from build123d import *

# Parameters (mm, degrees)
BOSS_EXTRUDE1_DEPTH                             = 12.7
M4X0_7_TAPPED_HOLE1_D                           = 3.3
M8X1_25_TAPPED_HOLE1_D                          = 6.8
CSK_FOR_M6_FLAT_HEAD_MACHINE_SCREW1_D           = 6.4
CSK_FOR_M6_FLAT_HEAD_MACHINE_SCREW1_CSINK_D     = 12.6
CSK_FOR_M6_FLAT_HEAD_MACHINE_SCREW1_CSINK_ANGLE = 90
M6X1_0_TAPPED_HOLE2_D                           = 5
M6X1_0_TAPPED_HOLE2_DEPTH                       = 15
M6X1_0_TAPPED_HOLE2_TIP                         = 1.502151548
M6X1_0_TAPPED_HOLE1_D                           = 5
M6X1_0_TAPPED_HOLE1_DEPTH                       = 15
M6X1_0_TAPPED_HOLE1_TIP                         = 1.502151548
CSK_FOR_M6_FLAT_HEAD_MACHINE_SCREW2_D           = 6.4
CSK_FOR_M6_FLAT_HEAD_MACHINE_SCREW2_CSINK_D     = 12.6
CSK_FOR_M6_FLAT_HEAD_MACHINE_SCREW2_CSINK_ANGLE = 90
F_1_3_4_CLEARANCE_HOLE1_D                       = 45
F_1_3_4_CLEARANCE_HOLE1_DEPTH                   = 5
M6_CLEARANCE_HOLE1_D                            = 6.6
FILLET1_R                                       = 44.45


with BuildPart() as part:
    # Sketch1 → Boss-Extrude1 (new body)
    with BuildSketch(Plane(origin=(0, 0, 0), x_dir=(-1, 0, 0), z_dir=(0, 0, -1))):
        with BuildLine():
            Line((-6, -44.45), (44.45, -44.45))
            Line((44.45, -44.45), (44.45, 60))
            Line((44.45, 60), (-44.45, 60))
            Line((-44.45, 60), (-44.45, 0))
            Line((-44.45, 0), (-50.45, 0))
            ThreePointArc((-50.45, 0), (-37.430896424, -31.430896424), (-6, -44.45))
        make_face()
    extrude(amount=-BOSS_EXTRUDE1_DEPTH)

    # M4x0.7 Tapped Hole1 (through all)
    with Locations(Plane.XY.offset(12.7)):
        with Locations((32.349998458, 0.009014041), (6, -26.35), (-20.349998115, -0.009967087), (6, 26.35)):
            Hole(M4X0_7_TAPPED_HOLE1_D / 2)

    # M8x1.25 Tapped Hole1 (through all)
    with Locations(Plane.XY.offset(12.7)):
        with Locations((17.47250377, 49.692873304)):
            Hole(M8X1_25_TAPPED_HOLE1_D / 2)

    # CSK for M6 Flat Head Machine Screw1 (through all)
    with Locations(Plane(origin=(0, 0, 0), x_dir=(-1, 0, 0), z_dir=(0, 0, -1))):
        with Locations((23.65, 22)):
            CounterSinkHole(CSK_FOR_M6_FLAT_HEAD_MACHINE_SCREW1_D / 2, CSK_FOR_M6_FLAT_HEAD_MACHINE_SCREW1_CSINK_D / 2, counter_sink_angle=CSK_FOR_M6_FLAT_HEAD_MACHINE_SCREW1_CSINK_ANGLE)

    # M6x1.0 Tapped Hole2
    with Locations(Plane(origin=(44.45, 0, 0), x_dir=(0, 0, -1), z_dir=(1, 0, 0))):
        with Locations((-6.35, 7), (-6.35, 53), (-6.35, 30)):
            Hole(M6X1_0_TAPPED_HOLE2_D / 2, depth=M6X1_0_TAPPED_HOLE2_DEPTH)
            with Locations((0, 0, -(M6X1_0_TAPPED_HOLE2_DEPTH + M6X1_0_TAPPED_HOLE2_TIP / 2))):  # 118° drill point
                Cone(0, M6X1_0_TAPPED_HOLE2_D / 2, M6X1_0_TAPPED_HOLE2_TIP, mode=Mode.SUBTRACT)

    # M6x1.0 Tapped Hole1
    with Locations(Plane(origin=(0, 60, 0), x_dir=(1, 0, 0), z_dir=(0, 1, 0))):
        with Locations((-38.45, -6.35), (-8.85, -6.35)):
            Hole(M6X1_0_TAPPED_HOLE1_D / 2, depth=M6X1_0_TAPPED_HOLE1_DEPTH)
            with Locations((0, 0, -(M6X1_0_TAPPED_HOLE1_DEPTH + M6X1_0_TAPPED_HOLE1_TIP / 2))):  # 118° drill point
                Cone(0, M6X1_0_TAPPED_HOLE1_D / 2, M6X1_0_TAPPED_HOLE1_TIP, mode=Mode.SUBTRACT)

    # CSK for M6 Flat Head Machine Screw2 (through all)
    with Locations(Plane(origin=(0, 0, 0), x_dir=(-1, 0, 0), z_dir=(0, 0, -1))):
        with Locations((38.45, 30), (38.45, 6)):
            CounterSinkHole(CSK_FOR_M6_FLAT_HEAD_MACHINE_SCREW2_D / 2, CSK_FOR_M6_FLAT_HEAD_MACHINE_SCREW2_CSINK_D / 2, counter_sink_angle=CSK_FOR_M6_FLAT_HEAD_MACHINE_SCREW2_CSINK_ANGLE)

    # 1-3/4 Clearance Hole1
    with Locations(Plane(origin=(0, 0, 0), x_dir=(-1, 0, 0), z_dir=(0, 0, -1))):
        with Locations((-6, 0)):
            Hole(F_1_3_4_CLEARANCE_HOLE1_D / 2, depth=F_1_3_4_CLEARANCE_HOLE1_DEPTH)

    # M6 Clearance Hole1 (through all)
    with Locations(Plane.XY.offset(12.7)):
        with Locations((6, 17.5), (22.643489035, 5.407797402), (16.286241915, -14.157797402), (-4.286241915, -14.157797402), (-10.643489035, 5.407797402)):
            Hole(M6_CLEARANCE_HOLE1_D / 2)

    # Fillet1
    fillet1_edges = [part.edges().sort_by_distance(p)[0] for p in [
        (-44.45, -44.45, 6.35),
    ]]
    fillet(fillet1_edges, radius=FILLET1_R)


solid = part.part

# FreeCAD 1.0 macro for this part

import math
import FreeCAD as App
import Part
import Sketcher

V = App.Vector
Q = App.Units.Quantity


def edges_at(feature, points):
    """Names of the edges that pass closest to the given points."""
    edges = feature.Shape.Edges
    near = lambda p: min(range(len(edges)), key=lambda i: edges[i].distToShape(Part.Vertex(*p))[0])
    return sorted({f"Edge{near(p) + 1}" for p in points})

doc = App.newDocument("Part")
params = doc.addObject("Spreadsheet::Sheet", "Params")
for row, (alias, value) in enumerate([
    ("sketch1_width", "6 mm"),
    ("sketch1_height", "60 mm"),
    ("sketch1_radius", "44.45 mm"),
    ("sketch1_width2", "88.9 mm"),
    ("pad1_length", "12.7 mm"),
    ("sketch2_diameter", "3.3 mm"),
    ("hole_diameter", "3.3 mm"),
    ("sketch3_diameter", "6.8 mm"),
    ("hole2_diameter", "6.8 mm"),
    ("sketch4_diameter", "6.4 mm"),
    ("hole3_diameter", "6.4 mm"),
    ("hole3_csink_diameter", "12.6 mm"),
    ("sketch5_diameter", "5 mm"),
    ("hole4_diameter", "5 mm"),
    ("hole4_depth", "15 mm"),
    ("sketch6_diameter", "5 mm"),
    ("hole5_diameter", "5 mm"),
    ("hole5_depth", "15 mm"),
    ("sketch7_diameter", "6.4 mm"),
    ("hole6_diameter", "6.4 mm"),
    ("hole6_csink_diameter", "12.6 mm"),
    ("sketch8_diameter", "45 mm"),
    ("hole7_diameter", "45 mm"),
    ("hole7_depth", "5 mm"),
    ("sketch9_diameter", "6.6 mm"),
    ("hole8_diameter", "6.6 mm"),
    ("fillet_radius", "44.45 mm"),
], start=1):
    params.set(f"A{row}", alias)
    params.set(f"B{row}", "=" + value)
    params.setAlias(f"B{row}", alias)

body = doc.addObject("PartDesign::Body", "Body")

sketch1 = body.newObject("Sketcher::SketchObject", "Sketch")
sketch1.AttachmentSupport = (doc.getObject("XY_Plane"), [""])
sketch1.MapMode = "FlatFace"
sketch1.addGeometry(Part.LineSegment(V(6, -44, 0), V(-44, -44, 0)), False)
sketch1.addGeometry(Part.LineSegment(V(-44, -44, 0), V(-44, 60, 0)), False)
sketch1.addGeometry(Part.LineSegment(V(-44, 60, 0), V(44, 60, 0)), False)
sketch1.addGeometry(Part.LineSegment(V(44, 60, 0), V(44, 0, 0)), False)
sketch1.addGeometry(Part.LineSegment(V(44, 0, 0), V(50, 0, 0)), False)
sketch1.addGeometry(Part.ArcOfCircle(Part.Circle(V(6, 0, 0), V(0, 0, 1), 44), math.radians(-90), math.radians(0)), False)
sketch1.addConstraint(Sketcher.Constraint("Coincident", 0, 2, 1, 1))
sketch1.addConstraint(Sketcher.Constraint("Coincident", 1, 2, 2, 1))
sketch1.addConstraint(Sketcher.Constraint("Coincident", 2, 2, 3, 1))
sketch1.addConstraint(Sketcher.Constraint("Coincident", 3, 2, 4, 1))
sketch1.addConstraint(Sketcher.Constraint("Coincident", 4, 2, 5, 2))
sketch1.addConstraint(Sketcher.Constraint("Tangent", 5, 1, 0, 1))
sketch1.addConstraint(Sketcher.Constraint("Horizontal", 0))
sketch1.addConstraint(Sketcher.Constraint("Vertical", 1))
sketch1.addConstraint(Sketcher.Constraint("Horizontal", 2))
sketch1.addConstraint(Sketcher.Constraint("Vertical", 3))
sketch1.addConstraint(Sketcher.Constraint("Horizontal", 4))
sketch1.addConstraint(Sketcher.Constraint("PointOnObject", 5, 3, -1))
sketch1.addConstraint(Sketcher.Constraint("PointOnObject", 3, 2, -1))
sketch1.addConstraint(Sketcher.Constraint("DistanceX", 4, 1, 4, 2, Q("6 mm")))
sketch1.addConstraint(Sketcher.Constraint("DistanceY", 3, 2, 3, 1, Q("60 mm")))
sketch1.addConstraint(Sketcher.Constraint("Radius", 5, Q("44.45 mm")))
sketch1.addConstraint(Sketcher.Constraint("DistanceX", 2, 1, 2, 2, Q("88.9 mm")))
sketch1.addConstraint(Sketcher.Constraint("DistanceX", -1, 1, 5, 3, Q("6 mm")))
sketch1.setExpression("Constraints[13]", "Params.sketch1_width")
sketch1.setExpression("Constraints[14]", "Params.sketch1_height")
sketch1.setExpression("Constraints[15]", "Params.sketch1_radius")
sketch1.setExpression("Constraints[16]", "Params.sketch1_width2")
pad1 = body.newObject("PartDesign::Pad", "Pad")
pad1.Profile = sketch1
pad1.setExpression("Length", "Params.pad1_length")

sketch2 = body.newObject("Sketcher::SketchObject", "Sketch001")
sketch2.AttachmentSupport = (doc.getObject("XY_Plane"), [""])
sketch2.MapMode = "FlatFace"
sketch2.AttachmentOffset = App.Placement(V(0, 0, 12.7), App.Rotation())
sketch2.addGeometry(Part.Circle(V(32.3, 0, 0), V(0, 0, 1), 1.6), False)
sketch2.addGeometry(Part.Circle(V(6, -26.4, 0), V(0, 0, 1), 1.6), False)
sketch2.addGeometry(Part.Circle(V(-20.3, 0, 0), V(0, 0, 1), 1.6), False)
sketch2.addGeometry(Part.Circle(V(6, 26.4, 0), V(0, 0, 1), 1.6), False)
sketch2.addConstraint(Sketcher.Constraint("Equal", 0, 1))
sketch2.addConstraint(Sketcher.Constraint("Equal", 1, 2))
sketch2.addConstraint(Sketcher.Constraint("Equal", 2, 3))
sketch2.addConstraint(Sketcher.Constraint("Symmetric", 1, 3, 3, 3, -1))
sketch2.addConstraint(Sketcher.Constraint("Diameter", 0, Q("3.3 mm")))
sketch2.addConstraint(Sketcher.Constraint("DistanceX", -1, 1, 1, 3, Q("6 mm")))
sketch2.addConstraint(Sketcher.Constraint("DistanceY", 1, 3, 3, 3, Q("52.7 mm")))
sketch2.addConstraint(Sketcher.Constraint("DistanceX", -1, 1, 0, 3, Q("32.349998 mm")))
sketch2.addConstraint(Sketcher.Constraint("DistanceX", 2, 3, -1, 1, Q("20.349998 mm")))
sketch2.addConstraint(Sketcher.Constraint("DistanceY", 2, 3, 0, 3, Q("0.018981 mm")))
sketch2.addConstraint(Sketcher.Constraint("DistanceY", -1, 1, 0, 3, Q("0.009014 mm")))
sketch2.setExpression("Constraints[4]", "Params.sketch2_diameter")
doc.recompute()
hole = body.newObject("PartDesign::Hole", "Hole")
hole.Profile = sketch2
hole.ThreadType = "None"
hole.setExpression("Diameter", "Params.hole_diameter")
hole.DepthType = "ThroughAll"

sketch3 = body.newObject("Sketcher::SketchObject", "Sketch002")
sketch3.AttachmentSupport = (doc.getObject("XY_Plane"), [""])
sketch3.MapMode = "FlatFace"
sketch3.AttachmentOffset = App.Placement(V(0, 0, 12.7), App.Rotation())
sketch3.addGeometry(Part.Circle(V(17.5, 49.7, 0), V(0, 0, 1), 3.4), False)
sketch3.addConstraint(Sketcher.Constraint("Diameter", 0, Q("6.8 mm")))
sketch3.addConstraint(Sketcher.Constraint("DistanceX", -1, 1, 0, 3, Q("17.472504 mm")))
sketch3.addConstraint(Sketcher.Constraint("DistanceY", -1, 1, 0, 3, Q("49.692873 mm")))
sketch3.setExpression("Constraints[0]", "Params.sketch3_diameter")
doc.recompute()
hole2 = body.newObject("PartDesign::Hole", "Hole001")
hole2.Profile = sketch3
hole2.ThreadType = "None"
hole2.setExpression("Diameter", "Params.hole2_diameter")
hole2.DepthType = "ThroughAll"

sketch4 = body.newObject("Sketcher::SketchObject", "Sketch003")
sketch4.AttachmentSupport = (doc.getObject("XY_Plane"), [""])
sketch4.MapMode = "FlatFace"
sketch4.addGeometry(Part.Circle(V(-23.6, 22, 0), V(0, 0, 1), 3.2), False)
sketch4.addConstraint(Sketcher.Constraint("Diameter", 0, Q("6.4 mm")))
sketch4.addConstraint(Sketcher.Constraint("DistanceY", -1, 1, 0, 3, Q("22 mm")))
sketch4.addConstraint(Sketcher.Constraint("DistanceX", 0, 3, -1, 1, Q("23.65 mm")))
sketch4.setExpression("Constraints[0]", "Params.sketch4_diameter")
doc.recompute()
hole3 = body.newObject("PartDesign::Hole", "Hole002")
hole3.Profile = sketch4
hole3.ThreadType = "None"
hole3.setExpression("Diameter", "Params.hole3_diameter")
hole3.DepthType = "ThroughAll"
hole3.HoleCutType = "Countersink"
hole3.setExpression("HoleCutDiameter", "Params.hole3_csink_diameter")
hole3.HoleCutCountersinkAngle = 90
hole3.Reversed = True

sketch5 = body.newObject("Sketcher::SketchObject", "Sketch004")
sketch5.AttachmentSupport = (doc.getObject("YZ_Plane"), [""])
sketch5.MapMode = "FlatFace"
sketch5.AttachmentOffset = App.Placement(V(0, 0, 44.45), App.Rotation())
sketch5.addGeometry(Part.Circle(V(7, 6.3, 0), V(0, 0, 1), 2.5), False)
sketch5.addGeometry(Part.Circle(V(53, 6.3, 0), V(0, 0, 1), 2.5), False)
sketch5.addGeometry(Part.Circle(V(30, 6.3, 0), V(0, 0, 1), 2.5), False)
sketch5.addConstraint(Sketcher.Constraint("Equal", 0, 1))
sketch5.addConstraint(Sketcher.Constraint("Equal", 1, 2))
sketch5.addConstraint(Sketcher.Constraint("Horizontal", 0, 3, 1, 3))
sketch5.addConstraint(Sketcher.Constraint("Horizontal", 1, 3, 2, 3))
sketch5.addConstraint(Sketcher.Constraint("Diameter", 0, Q("5 mm")))
sketch5.addConstraint(Sketcher.Constraint("DistanceX", -1, 1, 0, 3, Q("7 mm")))
sketch5.addConstraint(Sketcher.Constraint("DistanceX", -1, 1, 1, 3, Q("53 mm")))
sketch5.addConstraint(Sketcher.Constraint("DistanceX", -1, 1, 2, 3, Q("30 mm")))
sketch5.addConstraint(Sketcher.Constraint("DistanceY", -1, 1, 0, 3, Q("6.35 mm")))
sketch5.setExpression("Constraints[4]", "Params.sketch5_diameter")
doc.recompute()
hole4 = body.newObject("PartDesign::Hole", "Hole003")
hole4.Profile = sketch5
hole4.ThreadType = "None"
hole4.setExpression("Diameter", "Params.hole4_diameter")
hole4.DepthType = "Dimension"
hole4.setExpression("Depth", "Params.hole4_depth")
hole4.DrillPoint = "Angled"
hole4.DrillPointAngle = 118

sketch6 = body.newObject("Sketcher::SketchObject", "Sketch005")
sketch6.AttachmentSupport = (doc.getObject("XZ_Plane"), [""])
sketch6.MapMode = "FlatFace"
sketch6.AttachmentOffset = App.Placement(V(0, 0, -60), App.Rotation())
sketch6.addGeometry(Part.Circle(V(-38.5, 6.3, 0), V(0, 0, 1), 2.5), False)
sketch6.addGeometry(Part.Circle(V(-8.8, 6.3, 0), V(0, 0, 1), 2.5), False)
sketch6.addConstraint(Sketcher.Constraint("Equal", 0, 1))
sketch6.addConstraint(Sketcher.Constraint("Horizontal", 0, 3, 1, 3))
sketch6.addConstraint(Sketcher.Constraint("Diameter", 0, Q("5 mm")))
sketch6.addConstraint(Sketcher.Constraint("DistanceX", 0, 3, 1, 3, Q("29.6 mm")))
sketch6.addConstraint(Sketcher.Constraint("DistanceX", 0, 3, -1, 1, Q("38.45 mm")))
sketch6.addConstraint(Sketcher.Constraint("DistanceY", -1, 1, 0, 3, Q("6.35 mm")))
sketch6.setExpression("Constraints[2]", "Params.sketch6_diameter")
doc.recompute()
hole5 = body.newObject("PartDesign::Hole", "Hole004")
hole5.Profile = sketch6
hole5.ThreadType = "None"
hole5.setExpression("Diameter", "Params.hole5_diameter")
hole5.DepthType = "Dimension"
hole5.setExpression("Depth", "Params.hole5_depth")
hole5.DrillPoint = "Angled"
hole5.DrillPointAngle = 118
hole5.Reversed = True

sketch7 = body.newObject("Sketcher::SketchObject", "Sketch006")
sketch7.AttachmentSupport = (doc.getObject("XY_Plane"), [""])
sketch7.MapMode = "FlatFace"
sketch7.addGeometry(Part.Circle(V(-38.5, 30, 0), V(0, 0, 1), 3.2), False)
sketch7.addGeometry(Part.Circle(V(-38.5, 6, 0), V(0, 0, 1), 3.2), False)
sketch7.addConstraint(Sketcher.Constraint("Equal", 0, 1))
sketch7.addConstraint(Sketcher.Constraint("Vertical", 0, 3, 1, 3))
sketch7.addConstraint(Sketcher.Constraint("Diameter", 0, Q("6.4 mm")))
sketch7.addConstraint(Sketcher.Constraint("DistanceY", -1, 1, 0, 3, Q("30 mm")))
sketch7.addConstraint(Sketcher.Constraint("DistanceY", -1, 1, 1, 3, Q("6 mm")))
sketch7.addConstraint(Sketcher.Constraint("DistanceX", 0, 3, -1, 1, Q("38.45 mm")))
sketch7.setExpression("Constraints[2]", "Params.sketch7_diameter")
doc.recompute()
hole6 = body.newObject("PartDesign::Hole", "Hole005")
hole6.Profile = sketch7
hole6.ThreadType = "None"
hole6.setExpression("Diameter", "Params.hole6_diameter")
hole6.DepthType = "ThroughAll"
hole6.HoleCutType = "Countersink"
hole6.setExpression("HoleCutDiameter", "Params.hole6_csink_diameter")
hole6.HoleCutCountersinkAngle = 90
hole6.Reversed = True

sketch8 = body.newObject("Sketcher::SketchObject", "Sketch007")
sketch8.AttachmentSupport = (doc.getObject("XY_Plane"), [""])
sketch8.MapMode = "FlatFace"
sketch8.addGeometry(Part.Circle(V(6, 0, 0), V(0, 0, 1), 22), False)
sketch8.addConstraint(Sketcher.Constraint("PointOnObject", 0, 3, -1))
sketch8.addConstraint(Sketcher.Constraint("Diameter", 0, Q("45 mm")))
sketch8.addConstraint(Sketcher.Constraint("DistanceX", -1, 1, 0, 3, Q("6 mm")))
sketch8.setExpression("Constraints[1]", "Params.sketch8_diameter")
doc.recompute()
hole7 = body.newObject("PartDesign::Hole", "Hole006")
hole7.Profile = sketch8
hole7.ThreadType = "None"
hole7.setExpression("Diameter", "Params.hole7_diameter")
hole7.DepthType = "Dimension"
hole7.setExpression("Depth", "Params.hole7_depth")
hole7.DrillPoint = "Flat"
hole7.Reversed = True

sketch9 = body.newObject("Sketcher::SketchObject", "Sketch008")
sketch9.AttachmentSupport = (doc.getObject("XY_Plane"), [""])
sketch9.MapMode = "FlatFace"
sketch9.AttachmentOffset = App.Placement(V(0, 0, 12.7), App.Rotation())
sketch9.addGeometry(Part.Circle(V(6, 17.5, 0), V(0, 0, 1), 3.3), False)
sketch9.addGeometry(Part.Circle(V(22.6, 5.4, 0), V(0, 0, 1), 3.3), False)
sketch9.addGeometry(Part.Circle(V(16.3, -14.2, 0), V(0, 0, 1), 3.3), False)
sketch9.addGeometry(Part.Circle(V(-4.3, -14.2, 0), V(0, 0, 1), 3.3), False)
sketch9.addGeometry(Part.Circle(V(-10.6, 5.4, 0), V(0, 0, 1), 3.3), False)
sketch9.addConstraint(Sketcher.Constraint("Equal", 0, 1))
sketch9.addConstraint(Sketcher.Constraint("Equal", 1, 2))
sketch9.addConstraint(Sketcher.Constraint("Equal", 2, 3))
sketch9.addConstraint(Sketcher.Constraint("Equal", 3, 4))
sketch9.addConstraint(Sketcher.Constraint("Horizontal", 2, 3, 3, 3))
sketch9.addConstraint(Sketcher.Constraint("Horizontal", 1, 3, 4, 3))
sketch9.addConstraint(Sketcher.Constraint("Diameter", 0, Q("6.6 mm")))
sketch9.addConstraint(Sketcher.Constraint("DistanceX", -1, 1, 0, 3, Q("6 mm")))
sketch9.addConstraint(Sketcher.Constraint("DistanceY", -1, 1, 0, 3, Q("17.5 mm")))
sketch9.addConstraint(Sketcher.Constraint("DistanceX", -1, 1, 1, 3, Q("22.643489 mm")))
sketch9.addConstraint(Sketcher.Constraint("DistanceX", -1, 1, 2, 3, Q("16.286242 mm")))
sketch9.addConstraint(Sketcher.Constraint("DistanceX", 3, 3, -1, 1, Q("4.286242 mm")))
sketch9.addConstraint(Sketcher.Constraint("DistanceX", 4, 3, -1, 1, Q("10.643489 mm")))
sketch9.addConstraint(Sketcher.Constraint("DistanceY", -1, 1, 1, 3, Q("5.407797 mm")))
sketch9.addConstraint(Sketcher.Constraint("DistanceY", 2, 3, -1, 1, Q("14.157797 mm")))
sketch9.setExpression("Constraints[6]", "Params.sketch9_diameter")
doc.recompute()
hole8 = body.newObject("PartDesign::Hole", "Hole007")
hole8.Profile = sketch9
hole8.ThreadType = "None"
hole8.setExpression("Diameter", "Params.hole8_diameter")
hole8.DepthType = "ThroughAll"
doc.recompute()

fillet = body.newObject("PartDesign::Fillet", "Fillet")
fillet.Base = (hole8, edges_at(hole8, [(-44.45, -44.45, 6.35)]))
fillet.setExpression("Radius", "Params.fillet_radius")

doc.recompute()
